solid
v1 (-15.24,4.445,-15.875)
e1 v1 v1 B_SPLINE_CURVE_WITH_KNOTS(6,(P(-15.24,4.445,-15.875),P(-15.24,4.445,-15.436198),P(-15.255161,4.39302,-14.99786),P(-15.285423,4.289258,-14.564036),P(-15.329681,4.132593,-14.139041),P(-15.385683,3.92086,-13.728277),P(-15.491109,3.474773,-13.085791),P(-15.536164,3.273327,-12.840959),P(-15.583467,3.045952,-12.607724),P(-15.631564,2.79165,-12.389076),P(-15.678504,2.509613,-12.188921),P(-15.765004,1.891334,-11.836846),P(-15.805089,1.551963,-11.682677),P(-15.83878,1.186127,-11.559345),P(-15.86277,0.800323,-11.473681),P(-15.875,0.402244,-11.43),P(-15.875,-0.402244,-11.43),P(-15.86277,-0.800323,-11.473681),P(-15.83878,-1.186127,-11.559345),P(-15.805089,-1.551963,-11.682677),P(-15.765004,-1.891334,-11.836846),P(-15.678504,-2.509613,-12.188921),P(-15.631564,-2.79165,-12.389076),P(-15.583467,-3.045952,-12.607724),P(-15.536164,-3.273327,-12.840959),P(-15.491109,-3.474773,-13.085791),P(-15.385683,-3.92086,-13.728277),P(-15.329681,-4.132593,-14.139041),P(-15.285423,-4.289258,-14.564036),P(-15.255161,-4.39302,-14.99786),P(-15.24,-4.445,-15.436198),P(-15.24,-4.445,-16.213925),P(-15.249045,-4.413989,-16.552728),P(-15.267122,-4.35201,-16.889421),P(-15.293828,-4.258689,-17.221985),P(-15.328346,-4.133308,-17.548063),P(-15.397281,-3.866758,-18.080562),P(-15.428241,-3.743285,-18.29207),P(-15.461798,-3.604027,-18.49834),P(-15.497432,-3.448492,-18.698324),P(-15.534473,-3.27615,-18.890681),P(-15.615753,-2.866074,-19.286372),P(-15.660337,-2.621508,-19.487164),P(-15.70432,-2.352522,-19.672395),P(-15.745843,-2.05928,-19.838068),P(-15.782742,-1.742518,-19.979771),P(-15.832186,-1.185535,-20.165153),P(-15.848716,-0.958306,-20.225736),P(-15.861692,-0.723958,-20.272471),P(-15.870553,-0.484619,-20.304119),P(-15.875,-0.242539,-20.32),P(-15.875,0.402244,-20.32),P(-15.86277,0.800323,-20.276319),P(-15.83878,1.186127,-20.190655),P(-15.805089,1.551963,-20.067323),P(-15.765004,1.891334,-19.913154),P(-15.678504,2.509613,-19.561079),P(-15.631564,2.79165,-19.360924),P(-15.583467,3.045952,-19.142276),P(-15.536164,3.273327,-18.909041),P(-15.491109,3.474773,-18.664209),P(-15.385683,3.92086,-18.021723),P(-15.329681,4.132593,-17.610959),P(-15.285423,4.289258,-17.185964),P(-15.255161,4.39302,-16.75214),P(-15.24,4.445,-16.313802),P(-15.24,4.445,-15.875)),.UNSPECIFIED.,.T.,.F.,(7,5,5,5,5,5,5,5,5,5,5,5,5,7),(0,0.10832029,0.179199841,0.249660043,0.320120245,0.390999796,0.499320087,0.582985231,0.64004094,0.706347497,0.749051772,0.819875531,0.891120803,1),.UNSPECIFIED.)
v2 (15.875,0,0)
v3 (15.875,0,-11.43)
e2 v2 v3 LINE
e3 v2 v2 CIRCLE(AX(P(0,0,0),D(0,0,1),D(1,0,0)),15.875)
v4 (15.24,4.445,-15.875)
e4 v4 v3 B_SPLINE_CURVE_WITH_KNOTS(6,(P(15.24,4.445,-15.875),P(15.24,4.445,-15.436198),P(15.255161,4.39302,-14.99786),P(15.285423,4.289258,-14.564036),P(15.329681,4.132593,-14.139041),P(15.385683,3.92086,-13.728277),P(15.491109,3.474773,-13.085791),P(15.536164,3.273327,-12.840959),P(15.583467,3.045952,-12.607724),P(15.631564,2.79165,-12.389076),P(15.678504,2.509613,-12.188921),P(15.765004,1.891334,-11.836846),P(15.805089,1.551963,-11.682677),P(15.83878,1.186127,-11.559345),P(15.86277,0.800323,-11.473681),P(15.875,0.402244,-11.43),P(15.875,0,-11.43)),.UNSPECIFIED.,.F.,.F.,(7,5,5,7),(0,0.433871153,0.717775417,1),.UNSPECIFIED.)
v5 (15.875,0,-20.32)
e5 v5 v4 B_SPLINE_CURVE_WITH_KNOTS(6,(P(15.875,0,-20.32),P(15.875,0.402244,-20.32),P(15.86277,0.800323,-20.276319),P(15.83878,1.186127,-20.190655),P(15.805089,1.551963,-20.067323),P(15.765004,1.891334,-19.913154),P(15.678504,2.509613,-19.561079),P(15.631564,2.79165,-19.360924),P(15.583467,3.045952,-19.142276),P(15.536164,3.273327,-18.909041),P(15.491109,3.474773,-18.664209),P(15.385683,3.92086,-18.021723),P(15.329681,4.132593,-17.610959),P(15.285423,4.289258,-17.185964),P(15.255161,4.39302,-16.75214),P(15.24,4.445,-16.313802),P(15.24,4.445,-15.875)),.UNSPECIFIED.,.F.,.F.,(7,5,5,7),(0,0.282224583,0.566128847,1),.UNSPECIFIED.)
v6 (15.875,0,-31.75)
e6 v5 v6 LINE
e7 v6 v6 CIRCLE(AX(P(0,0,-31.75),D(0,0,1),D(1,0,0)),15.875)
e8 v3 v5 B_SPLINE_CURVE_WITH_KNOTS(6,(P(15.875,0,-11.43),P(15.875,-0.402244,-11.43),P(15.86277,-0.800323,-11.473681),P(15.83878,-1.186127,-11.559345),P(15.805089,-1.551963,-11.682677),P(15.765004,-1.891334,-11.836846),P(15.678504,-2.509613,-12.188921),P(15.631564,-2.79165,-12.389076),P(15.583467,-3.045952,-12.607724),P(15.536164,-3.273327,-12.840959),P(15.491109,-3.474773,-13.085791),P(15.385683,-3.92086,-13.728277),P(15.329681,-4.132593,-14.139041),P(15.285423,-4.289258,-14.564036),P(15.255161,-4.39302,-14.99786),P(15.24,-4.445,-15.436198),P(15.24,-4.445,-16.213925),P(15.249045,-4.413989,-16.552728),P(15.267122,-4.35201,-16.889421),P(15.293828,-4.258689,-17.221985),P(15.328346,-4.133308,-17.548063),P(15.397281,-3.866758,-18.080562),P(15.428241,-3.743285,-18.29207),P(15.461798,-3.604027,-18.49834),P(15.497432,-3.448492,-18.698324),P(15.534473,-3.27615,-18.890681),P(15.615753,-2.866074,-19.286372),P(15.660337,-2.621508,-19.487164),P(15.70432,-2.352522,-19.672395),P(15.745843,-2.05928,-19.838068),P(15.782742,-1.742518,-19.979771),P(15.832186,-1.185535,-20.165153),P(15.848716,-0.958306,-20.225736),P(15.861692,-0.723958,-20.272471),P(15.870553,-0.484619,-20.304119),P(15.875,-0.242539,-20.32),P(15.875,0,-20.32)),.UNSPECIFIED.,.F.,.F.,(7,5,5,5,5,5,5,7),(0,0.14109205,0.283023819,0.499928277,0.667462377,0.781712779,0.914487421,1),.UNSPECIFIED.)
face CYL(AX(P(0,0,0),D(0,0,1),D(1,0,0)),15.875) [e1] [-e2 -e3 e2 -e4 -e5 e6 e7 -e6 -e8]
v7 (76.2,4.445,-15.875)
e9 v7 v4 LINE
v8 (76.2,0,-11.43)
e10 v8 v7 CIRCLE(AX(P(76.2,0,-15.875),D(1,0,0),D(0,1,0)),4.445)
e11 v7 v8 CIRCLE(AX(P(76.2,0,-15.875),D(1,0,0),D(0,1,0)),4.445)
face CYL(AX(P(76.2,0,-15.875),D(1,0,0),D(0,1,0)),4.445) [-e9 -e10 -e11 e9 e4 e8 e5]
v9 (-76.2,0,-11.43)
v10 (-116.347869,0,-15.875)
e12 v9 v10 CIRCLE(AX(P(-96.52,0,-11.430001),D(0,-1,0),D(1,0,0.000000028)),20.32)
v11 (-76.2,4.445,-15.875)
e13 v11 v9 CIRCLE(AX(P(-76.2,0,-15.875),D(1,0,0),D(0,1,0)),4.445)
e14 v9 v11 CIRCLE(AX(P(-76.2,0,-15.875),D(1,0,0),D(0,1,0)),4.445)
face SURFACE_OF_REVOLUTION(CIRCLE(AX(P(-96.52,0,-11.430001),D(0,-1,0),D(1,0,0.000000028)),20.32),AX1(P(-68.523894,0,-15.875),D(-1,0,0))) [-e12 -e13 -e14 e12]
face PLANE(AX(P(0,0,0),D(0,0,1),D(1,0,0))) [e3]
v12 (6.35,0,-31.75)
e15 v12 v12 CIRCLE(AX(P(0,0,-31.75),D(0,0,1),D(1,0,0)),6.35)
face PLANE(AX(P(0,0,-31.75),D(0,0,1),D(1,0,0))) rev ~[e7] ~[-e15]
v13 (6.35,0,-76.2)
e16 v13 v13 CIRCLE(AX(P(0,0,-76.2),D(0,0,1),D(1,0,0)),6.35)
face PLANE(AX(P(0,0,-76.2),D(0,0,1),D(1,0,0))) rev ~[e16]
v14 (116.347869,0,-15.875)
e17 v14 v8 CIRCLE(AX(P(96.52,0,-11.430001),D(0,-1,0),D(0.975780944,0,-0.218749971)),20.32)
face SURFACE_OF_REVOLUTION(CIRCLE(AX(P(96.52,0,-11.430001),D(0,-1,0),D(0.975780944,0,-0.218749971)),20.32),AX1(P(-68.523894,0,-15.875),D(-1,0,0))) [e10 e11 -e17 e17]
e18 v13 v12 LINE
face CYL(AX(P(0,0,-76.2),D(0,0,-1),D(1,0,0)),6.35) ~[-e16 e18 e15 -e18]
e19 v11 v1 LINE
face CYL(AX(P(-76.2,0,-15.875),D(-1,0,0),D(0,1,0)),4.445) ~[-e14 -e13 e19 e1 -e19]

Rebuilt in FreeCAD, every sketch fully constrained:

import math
import FreeCAD as App
import Part
import Sketcher
from FreeCAD import Vector
Q = App.Units.Quantity

doc = App.newDocument("Part")
body = doc.addObject("PartDesign::Body", "Body")

# Sketch on XY plane
sketch1 = body.newObject("Sketcher::SketchObject", "Sketch")
sketch1.AttachmentSupport = (doc.getObject("XY_Plane"), [""])
sketch1.MapMode = "FlatFace"
sketch1.addGeometry(Part.Circle(Vector(0, 0, 0), Vector(0, 0, 1), 16), False)
sketch1.addConstraint([
    Sketcher.Constraint("Coincident", 0, 3, -1, 1),
    Sketcher.Constraint("Diameter", 0, Q("1.25 in")),
])
pad1 = body.newObject("PartDesign::Pad", "Pad")
pad1.Profile = sketch1
pad1.Length = Q("1.25 in")
pad1.Reversed = True

# Sketch on XY plane
sketch2 = body.newObject("Sketcher::SketchObject", "Sketch001")
sketch2.AttachmentSupport = (doc.getObject("XY_Plane"), [""])
sketch2.MapMode = "FlatFace"
sketch2.AttachmentOffset = App.Placement(Vector(0, 0, -3 * 25.4), App.Rotation())
sketch2.addGeometry(Part.Circle(Vector(0, 0, 0), Vector(0, 0, 1), 6), False)
sketch2.addConstraint([
    Sketcher.Constraint("Coincident", 0, 3, -1, 1),
    Sketcher.Constraint("Diameter", 0, Q("0.5 in")),
])
pad2 = body.newObject("PartDesign::Pad", "Pad001")
pad2.Profile = sketch2
pad2.Length = Q("1.75 in")

# Sketch on YZ plane
sketch3 = body.newObject("Sketcher::SketchObject", "Sketch002")
sketch3.AttachmentSupport = (doc.getObject("YZ_Plane"), [""])
sketch3.MapMode = "FlatFace"
sketch3.AttachmentOffset = App.Placement(Vector(0, 0, 3 * 25.4), App.Rotation())
sketch3.addGeometry(Part.Circle(Vector(0, -15.9, 0), Vector(0, 0, 1), 4.4), False)
sketch3.addConstraint([
    Sketcher.Constraint("PointOnObject", 0, 3, -2),
    Sketcher.Constraint("Diameter", 0, Q("0.35 in")),
    Sketcher.Constraint("DistanceY", 0, 3, -1, 1, Q("0.625 in")),
])
pad3 = body.newObject("PartDesign::Pad", "Pad002")
pad3.Profile = sketch3
pad3.Length = Q("3 in")
pad3.Reversed = True

# Sketch on YZ plane
sketch4 = body.newObject("Sketcher::SketchObject", "Sketch003")
sketch4.AttachmentSupport = (doc.getObject("YZ_Plane"), [""])
sketch4.MapMode = "FlatFace"
sketch4.AttachmentOffset = App.Placement(Vector(0, 0, -3 * 25.4), App.Rotation())
sketch4.addGeometry(Part.Circle(Vector(0, -15.9, 0), Vector(0, 0, 1), 4.4), False)
sketch4.addConstraint([
    Sketcher.Constraint("PointOnObject", 0, 3, -2),
    Sketcher.Constraint("Diameter", 0, Q("0.35 in")),
    Sketcher.Constraint("DistanceY", 0, 3, -1, 1, Q("0.625 in")),
])
pad4 = body.newObject("PartDesign::Pad", "Pad003")
pad4.Profile = sketch4
pad4.Length = Q("3 in")

# Sketch on XZ plane
sketch5 = body.newObject("Sketcher::SketchObject", "Sketch004")
sketch5.AttachmentSupport = (doc.getObject("XZ_Plane"), [""])
sketch5.MapMode = "FlatFace"
sketch5.addGeometry([
    Part.LineSegment(Vector(-116.3, -15.9, 0), Vector(-76.2, -15.9, 0)),
    Part.LineSegment(Vector(-76.2, -15.9, 0), Vector(-76.2, -11.4, 0)),
    Part.ArcOfCircle(Part.Circle(Vector(-96.5, -11.4, 0), Vector(0, 0, 1), 20.3), math.radians(0), math.radians(193)),
], False)
sketch5.addGeometry(Part.LineSegment(Vector(-76.2, -15.9, 0), Vector(-116.3, -15.9, 0)), True)  # axis
sketch5.addConstraint([
    Sketcher.Constraint("Coincident", 0, 2, 1, 1),
    Sketcher.Constraint("Tangent", 1, 2, 2, 1),
    Sketcher.Constraint("Coincident", 2, 2, 0, 1),
    Sketcher.Constraint("Horizontal", 0),
    Sketcher.Constraint("Vertical", 1),
    Sketcher.Constraint("Horizontal", 3),
    Sketcher.Constraint("Coincident", 3, 1, 0, 2),
    Sketcher.Constraint("Equal", 0, 3),
    Sketcher.Constraint("Radius", 2, Q("0.8 in")),
    Sketcher.Constraint("DistanceX", 0, 2, -1, 1, Q("3 in")),
    Sketcher.Constraint("DistanceY", 1, 1, 1, 2, Q("0.175 in")),
    Sketcher.Constraint("DistanceY", 2, 3, -1, 1, Q("0.45 in")),
])
revolution = body.newObject("PartDesign::Revolution", "Revolution")
revolution.Profile = sketch5
revolution.ReferenceAxis = (sketch5, ["Axis0"])
revolution.Angle = 360

# Sketch on XZ plane
sketch6 = body.newObject("Sketcher::SketchObject", "Sketch005")
sketch6.AttachmentSupport = (doc.getObject("XZ_Plane"), [""])
sketch6.MapMode = "FlatFace"
sketch6.addGeometry([
    Part.LineSegment(Vector(76.2, -11.4, 0), Vector(76.2, -15.9, 0)),
    Part.LineSegment(Vector(76.2, -15.9, 0), Vector(116.3, -15.9, 0)),
    Part.ArcOfCircle(Part.Circle(Vector(96.5, -11.4, 0), Vector(0, 0, 1), 20.3), math.radians(-13), math.radians(180)),
], False)
sketch6.addGeometry(Part.LineSegment(Vector(116.3, -15.9, 0), Vector(76.2, -15.9, 0)), True)  # axis
sketch6.addConstraint([
    Sketcher.Constraint("Coincident", 0, 2, 1, 1),
    Sketcher.Constraint("Coincident", 1, 2, 2, 1),
    Sketcher.Constraint("Tangent", 2, 2, 0, 1),
    Sketcher.Constraint("Vertical", 0),
    Sketcher.Constraint("Horizontal", 1),
    Sketcher.Constraint("Horizontal", 3),
    Sketcher.Constraint("Coincident", 3, 1, 1, 2),
    Sketcher.Constraint("Vertical", 2, 2, 3, 2),
    Sketcher.Constraint("Radius", 2, Q("0.8 in")),
    Sketcher.Constraint("DistanceX", -1, 1, 0, 2, Q("3 in")),
    Sketcher.Constraint("DistanceY", 0, 2, 0, 1, Q("0.175 in")),
    Sketcher.Constraint("DistanceY", 2, 3, -1, 1, Q("0.45 in")),
])
revolution2 = body.newObject("PartDesign::Revolution", "Revolution001")
revolution2.Profile = sketch6
revolution2.ReferenceAxis = (sketch6, ["Axis0"])
revolution2.Angle = 360

doc.recompute()
